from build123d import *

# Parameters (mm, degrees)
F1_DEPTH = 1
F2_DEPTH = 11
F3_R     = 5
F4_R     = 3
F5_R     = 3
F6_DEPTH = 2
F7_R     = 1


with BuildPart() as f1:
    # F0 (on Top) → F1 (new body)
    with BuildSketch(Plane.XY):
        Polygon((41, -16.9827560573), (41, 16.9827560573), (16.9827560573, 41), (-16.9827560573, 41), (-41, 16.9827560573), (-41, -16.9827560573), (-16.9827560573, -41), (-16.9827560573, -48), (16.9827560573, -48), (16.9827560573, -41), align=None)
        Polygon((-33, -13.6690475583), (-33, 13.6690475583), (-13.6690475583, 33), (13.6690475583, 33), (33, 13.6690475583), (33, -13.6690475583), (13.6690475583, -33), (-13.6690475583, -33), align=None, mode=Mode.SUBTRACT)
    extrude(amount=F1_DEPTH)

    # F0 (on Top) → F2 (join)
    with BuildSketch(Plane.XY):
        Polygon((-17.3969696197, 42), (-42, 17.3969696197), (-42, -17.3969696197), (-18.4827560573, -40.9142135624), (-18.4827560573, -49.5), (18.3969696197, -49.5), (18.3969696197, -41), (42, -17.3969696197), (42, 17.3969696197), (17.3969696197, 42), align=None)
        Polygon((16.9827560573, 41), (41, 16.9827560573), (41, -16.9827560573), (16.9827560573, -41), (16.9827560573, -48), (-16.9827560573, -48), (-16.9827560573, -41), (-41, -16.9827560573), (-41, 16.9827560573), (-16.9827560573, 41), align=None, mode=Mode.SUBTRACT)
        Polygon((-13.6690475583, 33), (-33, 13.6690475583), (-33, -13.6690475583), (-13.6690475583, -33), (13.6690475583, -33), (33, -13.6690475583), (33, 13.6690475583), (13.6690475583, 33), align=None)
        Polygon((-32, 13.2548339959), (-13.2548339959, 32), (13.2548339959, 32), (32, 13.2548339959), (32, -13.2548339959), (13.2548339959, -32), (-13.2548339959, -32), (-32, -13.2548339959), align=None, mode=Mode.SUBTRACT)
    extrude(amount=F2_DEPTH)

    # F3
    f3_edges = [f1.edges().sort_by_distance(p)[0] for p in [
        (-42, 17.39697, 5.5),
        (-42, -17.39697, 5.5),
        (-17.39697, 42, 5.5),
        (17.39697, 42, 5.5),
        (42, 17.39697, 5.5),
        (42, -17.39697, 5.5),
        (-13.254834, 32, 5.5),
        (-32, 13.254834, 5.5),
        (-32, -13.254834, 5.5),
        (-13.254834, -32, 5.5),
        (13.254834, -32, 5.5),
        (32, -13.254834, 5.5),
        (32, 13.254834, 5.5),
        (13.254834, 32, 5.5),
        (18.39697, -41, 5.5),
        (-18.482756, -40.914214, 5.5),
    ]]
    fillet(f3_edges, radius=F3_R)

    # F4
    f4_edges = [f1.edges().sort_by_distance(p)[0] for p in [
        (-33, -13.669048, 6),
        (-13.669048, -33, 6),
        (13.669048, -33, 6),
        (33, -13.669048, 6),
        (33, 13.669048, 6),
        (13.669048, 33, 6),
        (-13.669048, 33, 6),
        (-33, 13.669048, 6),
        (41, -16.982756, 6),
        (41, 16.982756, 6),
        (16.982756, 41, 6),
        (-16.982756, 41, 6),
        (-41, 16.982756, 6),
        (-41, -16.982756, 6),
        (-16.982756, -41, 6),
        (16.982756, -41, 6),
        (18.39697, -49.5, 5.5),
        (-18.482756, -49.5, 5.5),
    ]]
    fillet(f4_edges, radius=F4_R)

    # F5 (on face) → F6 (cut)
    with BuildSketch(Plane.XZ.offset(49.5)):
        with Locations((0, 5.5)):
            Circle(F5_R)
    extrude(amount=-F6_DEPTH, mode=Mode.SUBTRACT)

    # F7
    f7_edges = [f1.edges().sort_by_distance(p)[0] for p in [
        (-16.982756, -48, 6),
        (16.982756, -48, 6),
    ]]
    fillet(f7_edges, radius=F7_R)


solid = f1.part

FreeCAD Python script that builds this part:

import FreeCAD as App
import Part
import Sketcher

V = App.Vector
Q = App.Units.Quantity


def edges_at(feature, points):
    """Names of the edges that pass closest to the given points."""
    edges = feature.Shape.Edges
    near = lambda p: min(range(len(edges)), key=lambda i: edges[i].distToShape(Part.Vertex(*p))[0])
    return sorted({f"Edge{near(p) + 1}" for p in points})


def add_polygon(sketch, points):
    """Adds a closed chain of lines whose ends are joined by coincident constraints."""
    first, n = sketch.GeometryCount, len(points)
    for a, b in zip(points, points[1:] + points[:1]):
        sketch.addGeometry(Part.LineSegment(App.Vector(*a, 0), App.Vector(*b, 0)), False)
    for i in range(n):
        sketch.addConstraint(Sketcher.Constraint("Coincident", first + i, 2, first + (i + 1) % n, 1))

doc = App.newDocument("Part")
params = doc.addObject("Spreadsheet::Sheet", "Params")
for row, (alias, value) in enumerate([
    ("sketch1_height", "7 mm"),
    ("pad1_length", "1 mm"),
    ("sketch2_height", "7 mm"),
    ("sketch2_height2", "8.5 mm"),
    ("pad2_length", "11 mm"),
    ("fillet_radius", "5 mm"),
    ("fillet2_radius", "3 mm"),
    ("sketch3_diameter", "6 mm"),
    ("pocket1_length", "2 mm"),
    ("fillet3_radius", "1 mm"),
], start=1):
    params.set(f"A{row}", alias)
    params.set(f"B{row}", "=" + value)
    params.setAlias(f"B{row}", alias)

body = doc.addObject("PartDesign::Body", "Body")

# Sketch on XY plane
sketch1 = doc.addObject("Sketcher::SketchObject", "Sketch")
body.addObject(sketch1)
sketch1.AttachmentSupport = (doc.XY_Plane, [""])
sketch1.MapMode = "FlatFace"
add_polygon(sketch1, [(41, -17), (41, 17), (17, 41), (-17, 41), (-41, 17), (-41, -17), (-17, -41), (-17, -48), (17, -48), (17, -41)])  # lines 0-9
add_polygon(sketch1, [(-14, -33), (-33, -14), (-33, 14), (-14, 33), (14, 33), (33, 14), (33, -14), (14, -33)])  # lines 10-17
sketch1.addConstraint(Sketcher.Constraint("Vertical", 0))
sketch1.addConstraint(Sketcher.Constraint("Horizontal", 2))
sketch1.addConstraint(Sketcher.Constraint("Vertical", 4))
sketch1.addConstraint(Sketcher.Constraint("Vertical", 6))
sketch1.addConstraint(Sketcher.Constraint("Horizontal", 7))
sketch1.addConstraint(Sketcher.Constraint("Vertical", 8))
sketch1.addConstraint(Sketcher.Constraint("Vertical", 11))
sketch1.addConstraint(Sketcher.Constraint("Horizontal", 13))
sketch1.addConstraint(Sketcher.Constraint("Vertical", 15))
sketch1.addConstraint(Sketcher.Constraint("Horizontal", 17))
sketch1.addConstraint(Sketcher.Constraint("Symmetric", 0, 2, 4, 2, -1, 1))
sketch1.addConstraint(Sketcher.Constraint("Symmetric", 1, 2, 5, 2, -1, 1))
sketch1.addConstraint(Sketcher.Constraint("Symmetric", 2, 2, 8, 2, -1, 1))
sketch1.addConstraint(Sketcher.Constraint("Symmetric", 10, 2, 14, 2, -1, 1))
sketch1.addConstraint(Sketcher.Constraint("Symmetric", 12, 2, 16, 2, -1, 1))
sketch1.addConstraint(Sketcher.Constraint("Perpendicular", 1, 3))
sketch1.addConstraint(Sketcher.Constraint("Perpendicular", 5, 9))
sketch1.addConstraint(Sketcher.Constraint("Perpendicular", 9, 10))
sketch1.addConstraint(Sketcher.Constraint("Perpendicular", 10, 12))
sketch1.addConstraint(Sketcher.Constraint("Perpendicular", 12, 14))
sketch1.addConstraint(Sketcher.Constraint("Perpendicular", 14, 16))
sketch1.addConstraint(Sketcher.Constraint("Horizontal", 0, 2, 3, 2))
sketch1.addConstraint(Sketcher.Constraint("Horizontal", 11, 2, 14, 2))
sketch1.addConstraint(Sketcher.Constraint("Vertical", 2, 2, 5, 2))
sketch1.addConstraint(Sketcher.Constraint("Equal", 7, 0))
sketch1.addConstraint(Sketcher.Constraint("Equal", 17, 11))
sketch1.addConstraint(Sketcher.Constraint("DistanceY", 6, 2, 6, 1, Q("7 mm")))
sketch1.addConstraint(Sketcher.Constraint("DistanceX", -1, 1, 0, 2, Q("41 mm")))
sketch1.addConstraint(Sketcher.Constraint("DistanceX", 10, 2, -1, 1, Q("33 mm")))
sketch1.addConstraint(Sketcher.Constraint("DistanceX", 2, 2, 2, 1, Q("33.965512 mm")))
sketch1.addConstraint(Sketcher.Constraint("DistanceX", 13, 1, 13, 2, Q("27.338095 mm")))
sketch1.setExpression("Constraints[44]", "Params.sketch1_height")
pad1 = doc.addObject("PartDesign::Pad", "Pad")
body.addObject(pad1)
pad1.Profile = sketch1
pad1.setExpression("Length", "Params.pad1_length")

# Sketch on XY plane
sketch2 = doc.addObject("Sketcher::SketchObject", "Sketch001")
body.addObject(sketch2)
sketch2.AttachmentSupport = (doc.XY_Plane, [""])
sketch2.MapMode = "FlatFace"
add_polygon(sketch2, [(-17, 42), (-42, 17), (-42, -17), (-18, -41), (-18, -50), (18, -50), (18, -41), (42, -17), (42, 17), (17, 42)])  # lines 0-9
add_polygon(sketch2, [(-17, 41), (17, 41), (41, 17), (41, -17), (17, -41), (17, -48), (-17, -48), (-17, -41), (-41, -17), (-41, 17)])  # lines 10-19
add_polygon(sketch2, [(-14, 33), (-33, 14), (-33, -14), (-14, -33), (14, -33), (33, -14), (33, 14), (14, 33)])  # lines 20-27
add_polygon(sketch2, [(-32, -13), (-32, 13), (-13, 32), (13, 32), (32, 13), (32, -13), (13, -32), (-13, -32)])  # lines 28-35
sketch2.addConstraint(Sketcher.Constraint("Vertical", 1))
sketch2.addConstraint(Sketcher.Constraint("Vertical", 3))
sketch2.addConstraint(Sketcher.Constraint("Horizontal", 4))
sketch2.addConstraint(Sketcher.Constraint("Vertical", 5))
sketch2.addConstraint(Sketcher.Constraint("Vertical", 7))
sketch2.addConstraint(Sketcher.Constraint("Horizontal", 9))
sketch2.addConstraint(Sketcher.Constraint("Horizontal", 10))
sketch2.addConstraint(Sketcher.Constraint("Vertical", 12))
sketch2.addConstraint(Sketcher.Constraint("Vertical", 14))
sketch2.addConstraint(Sketcher.Constraint("Horizontal", 15))
sketch2.addConstraint(Sketcher.Constraint("Vertical", 16))
sketch2.addConstraint(Sketcher.Constraint("Vertical", 18))
sketch2.addConstraint(Sketcher.Constraint("Vertical", 21))
sketch2.addConstraint(Sketcher.Constraint("Horizontal", 23))
sketch2.addConstraint(Sketcher.Constraint("Vertical", 25))
sketch2.addConstraint(Sketcher.Constraint("Horizontal", 27))
sketch2.addConstraint(Sketcher.Constraint("Vertical", 28))
sketch2.addConstraint(Sketcher.Constraint("Horizontal", 30))
sketch2.addConstraint(Sketcher.Constraint("Vertical", 32))
sketch2.addConstraint(Sketcher.Constraint("Horizontal", 34))
sketch2.addConstraint(Sketcher.Constraint("Symmetric", 0, 2, 6, 2, -1, 1))
sketch2.addConstraint(Sketcher.Constraint("Symmetric", 10, 2, 16, 2, -1, 1))
sketch2.addConstraint(Sketcher.Constraint("Symmetric", 11, 2, 17, 2, -1, 1))
sketch2.addConstraint(Sketcher.Constraint("Symmetric", 13, 2, 19, 2, -1, 1))
sketch2.addConstraint(Sketcher.Constraint("Symmetric", 20, 2, 24, 2, -1, 1))
sketch2.addConstraint(Sketcher.Constraint("Symmetric", 22, 2, 26, 2, -1, 1))
sketch2.addConstraint(Sketcher.Constraint("Symmetric", 28, 2, 32, 2, -1, 1))
sketch2.addConstraint(Sketcher.Constraint("Symmetric", 29, 2, 33, 2, -1, 1))
sketch2.addConstraint(Sketcher.Constraint("Perpendicular", 0, 2))
sketch2.addConstraint(Sketcher.Constraint("Perpendicular", 2, 6))
sketch2.addConstraint(Sketcher.Constraint("Perpendicular", 6, 8))
sketch2.addConstraint(Sketcher.Constraint("Parallel", 8, 11))
sketch2.addConstraint(Sketcher.Constraint("Perpendicular", 11, 13))
sketch2.addConstraint(Sketcher.Constraint("Perpendicular", 17, 19))
sketch2.addConstraint(Sketcher.Constraint("Parallel", 19, 20))
sketch2.addConstraint(Sketcher.Constraint("Perpendicular", 20, 22))
sketch2.addConstraint(Sketcher.Constraint("Perpendicular", 22, 24))
sketch2.addConstraint(Sketcher.Constraint("Perpendicular", 24, 26))
sketch2.addConstraint(Sketcher.Constraint("Perpendicular", 26, 29))
sketch2.addConstraint(Sketcher.Constraint("Perpendicular", 29, 31))
sketch2.addConstraint(Sketcher.Constraint("Perpendicular", 33, 35))
sketch2.addConstraint(Sketcher.Constraint("Horizontal", 1, 2, 6, 2))
sketch2.addConstraint(Sketcher.Constraint("Horizontal", 0, 2, 7, 2))
sketch2.addConstraint(Sketcher.Constraint("Horizontal", 5, 2, 13, 2))
sketch2.addConstraint(Sketcher.Constraint("Horizontal", 12, 2, 17, 2))
sketch2.addConstraint(Sketcher.Constraint("Horizontal", 21, 2, 24, 2))
sketch2.addConstraint(Sketcher.Constraint("Horizontal", 28, 2, 31, 2))
sketch2.addConstraint(Sketcher.Constraint("Horizontal", 32, 2, 35, 2))
sketch2.addConstraint(Sketcher.Constraint("Vertical", 10, 2, 13, 2))
sketch2.addConstraint(Sketcher.Constraint("Equal", 9, 1))
sketch2.addConstraint(Sketcher.Constraint("Equal", 15, 12))
sketch2.addConstraint(Sketcher.Constraint("Equal", 27, 21))
sketch2.addConstraint(Sketcher.Constraint("Equal", 34, 28))
sketch2.addConstraint(Sketcher.Constraint("DistanceY", 14, 2, 14, 1, Q("7 mm")))
sketch2.addConstraint(Sketcher.Constraint("DistanceY", 5, 1, 5, 2, Q("8.5 mm")))
sketch2.addConstraint(Sketcher.Constraint("DistanceX", 0, 2, -1, 1, Q("42 mm")))
sketch2.addConstraint(Sketcher.Constraint("DistanceY", 5, 2, -1, 1, Q("41 mm")))
sketch2.addConstraint(Sketcher.Constraint("DistanceX", 20, 2, -1, 1, Q("33 mm")))
sketch2.addConstraint(Sketcher.Constraint("DistanceX", 28, 2, -1, 1, Q("32 mm")))
sketch2.addConstraint(Sketcher.Constraint("DistanceX", 3, 2, 15, 2, Q("1.5 mm")))
sketch2.addConstraint(Sketcher.Constraint("DistanceX", 9, 2, 9, 1, Q("34.793939 mm")))
sketch2.addConstraint(Sketcher.Constraint("DistanceX", 4, 1, 4, 2, Q("36.879726 mm")))
sketch2.addConstraint(Sketcher.Constraint("DistanceX", 23, 1, 23, 2, Q("27.338095 mm")))
sketch2.addConstraint(Sketcher.Constraint("DistanceX", 30, 1, 30, 2, Q("26.509668 mm")))
sketch2.setExpression("Constraints[89]", "Params.sketch2_height")
sketch2.setExpression("Constraints[90]", "Params.sketch2_height2")
pad2 = doc.addObject("PartDesign::Pad", "Pad001")
body.addObject(pad2)
pad2.Profile = sketch2
pad2.setExpression("Length", "Params.pad2_length")
doc.recompute()

fillet = doc.addObject("PartDesign::Fillet", "Fillet")
body.addObject(fillet)
fillet.Base = (pad2, edges_at(pad2, [
    (-42, 17.397, 5.5),
    (-42, -17.397, 5.5),
    (-17.397, 42, 5.5),
    (17.397, 42, 5.5),
    (42, 17.397, 5.5),
    (42, -17.397, 5.5),
    (-13.255, 32, 5.5),
    (-32, 13.255, 5.5),
    (-32, -13.255, 5.5),
    (-13.255, -32, 5.5),
    (13.255, -32, 5.5),
    (32, -13.255, 5.5),
    (32, 13.255, 5.5),
    (13.255, 32, 5.5),
    (18.397, -41, 5.5),
    (-18.483, -40.914, 5.5),
]))
fillet.setExpression("Radius", "Params.fillet_radius")
doc.recompute()

fillet2 = doc.addObject("PartDesign::Fillet", "Fillet001")
body.addObject(fillet2)
fillet2.Base = (fillet, edges_at(fillet, [
    (-33, -13.669, 6),
    (-13.669, -33, 6),
    (13.669, -33, 6),
    (33, -13.669, 6),
    (33, 13.669, 6),
    (13.669, 33, 6),
    (-13.669, 33, 6),
    (-33, 13.669, 6),
    (41, -16.983, 6),
    (41, 16.983, 6),
    (16.983, 41, 6),
    (-16.983, 41, 6),
    (-41, 16.983, 6),
    (-41, -16.983, 6),
    (-16.983, -41, 6),
    (16.983, -41, 6),
    (18.397, -49.5, 5.5),
    (-18.483, -49.5, 5.5),
]))
fillet2.setExpression("Radius", "Params.fillet2_radius")

# Sketch on XZ plane
sketch3 = doc.addObject("Sketcher::SketchObject", "Sketch002")
body.addObject(sketch3)
sketch3.AttachmentSupport = (doc.XZ_Plane, [""])
sketch3.MapMode = "FlatFace"
sketch3.AttachmentOffset = App.Placement(V(0, 0, 49.5), App.Rotation())
sketch3.addGeometry(Part.Circle(V(0, 5.5, 0), V(0, 0, 1), 3), False)
sketch3.addConstraint(Sketcher.Constraint("PointOnObject", 0, 3, -2))
sketch3.addConstraint(Sketcher.Constraint("Diameter", 0, Q("6 mm")))
sketch3.addConstraint(Sketcher.Constraint("DistanceY", -1, 1, 0, 3, Q("5.5 mm")))
sketch3.setExpression("Constraints[1]", "Params.sketch3_diameter")
pocket1 = doc.addObject("PartDesign::Pocket", "Pocket")
body.addObject(pocket1)
pocket1.Profile = sketch3
pocket1.setExpression("Length", "Params.pocket1_length")
doc.recompute()

fillet3 = doc.addObject("PartDesign::Fillet", "Fillet002")
body.addObject(fillet3)
fillet3.Base = (pocket1, edges_at(pocket1, [(-16.983, -48, 6), (16.983, -48, 6)]))
fillet3.setExpression("Radius", "Params.fillet3_radius")

doc.recompute()
